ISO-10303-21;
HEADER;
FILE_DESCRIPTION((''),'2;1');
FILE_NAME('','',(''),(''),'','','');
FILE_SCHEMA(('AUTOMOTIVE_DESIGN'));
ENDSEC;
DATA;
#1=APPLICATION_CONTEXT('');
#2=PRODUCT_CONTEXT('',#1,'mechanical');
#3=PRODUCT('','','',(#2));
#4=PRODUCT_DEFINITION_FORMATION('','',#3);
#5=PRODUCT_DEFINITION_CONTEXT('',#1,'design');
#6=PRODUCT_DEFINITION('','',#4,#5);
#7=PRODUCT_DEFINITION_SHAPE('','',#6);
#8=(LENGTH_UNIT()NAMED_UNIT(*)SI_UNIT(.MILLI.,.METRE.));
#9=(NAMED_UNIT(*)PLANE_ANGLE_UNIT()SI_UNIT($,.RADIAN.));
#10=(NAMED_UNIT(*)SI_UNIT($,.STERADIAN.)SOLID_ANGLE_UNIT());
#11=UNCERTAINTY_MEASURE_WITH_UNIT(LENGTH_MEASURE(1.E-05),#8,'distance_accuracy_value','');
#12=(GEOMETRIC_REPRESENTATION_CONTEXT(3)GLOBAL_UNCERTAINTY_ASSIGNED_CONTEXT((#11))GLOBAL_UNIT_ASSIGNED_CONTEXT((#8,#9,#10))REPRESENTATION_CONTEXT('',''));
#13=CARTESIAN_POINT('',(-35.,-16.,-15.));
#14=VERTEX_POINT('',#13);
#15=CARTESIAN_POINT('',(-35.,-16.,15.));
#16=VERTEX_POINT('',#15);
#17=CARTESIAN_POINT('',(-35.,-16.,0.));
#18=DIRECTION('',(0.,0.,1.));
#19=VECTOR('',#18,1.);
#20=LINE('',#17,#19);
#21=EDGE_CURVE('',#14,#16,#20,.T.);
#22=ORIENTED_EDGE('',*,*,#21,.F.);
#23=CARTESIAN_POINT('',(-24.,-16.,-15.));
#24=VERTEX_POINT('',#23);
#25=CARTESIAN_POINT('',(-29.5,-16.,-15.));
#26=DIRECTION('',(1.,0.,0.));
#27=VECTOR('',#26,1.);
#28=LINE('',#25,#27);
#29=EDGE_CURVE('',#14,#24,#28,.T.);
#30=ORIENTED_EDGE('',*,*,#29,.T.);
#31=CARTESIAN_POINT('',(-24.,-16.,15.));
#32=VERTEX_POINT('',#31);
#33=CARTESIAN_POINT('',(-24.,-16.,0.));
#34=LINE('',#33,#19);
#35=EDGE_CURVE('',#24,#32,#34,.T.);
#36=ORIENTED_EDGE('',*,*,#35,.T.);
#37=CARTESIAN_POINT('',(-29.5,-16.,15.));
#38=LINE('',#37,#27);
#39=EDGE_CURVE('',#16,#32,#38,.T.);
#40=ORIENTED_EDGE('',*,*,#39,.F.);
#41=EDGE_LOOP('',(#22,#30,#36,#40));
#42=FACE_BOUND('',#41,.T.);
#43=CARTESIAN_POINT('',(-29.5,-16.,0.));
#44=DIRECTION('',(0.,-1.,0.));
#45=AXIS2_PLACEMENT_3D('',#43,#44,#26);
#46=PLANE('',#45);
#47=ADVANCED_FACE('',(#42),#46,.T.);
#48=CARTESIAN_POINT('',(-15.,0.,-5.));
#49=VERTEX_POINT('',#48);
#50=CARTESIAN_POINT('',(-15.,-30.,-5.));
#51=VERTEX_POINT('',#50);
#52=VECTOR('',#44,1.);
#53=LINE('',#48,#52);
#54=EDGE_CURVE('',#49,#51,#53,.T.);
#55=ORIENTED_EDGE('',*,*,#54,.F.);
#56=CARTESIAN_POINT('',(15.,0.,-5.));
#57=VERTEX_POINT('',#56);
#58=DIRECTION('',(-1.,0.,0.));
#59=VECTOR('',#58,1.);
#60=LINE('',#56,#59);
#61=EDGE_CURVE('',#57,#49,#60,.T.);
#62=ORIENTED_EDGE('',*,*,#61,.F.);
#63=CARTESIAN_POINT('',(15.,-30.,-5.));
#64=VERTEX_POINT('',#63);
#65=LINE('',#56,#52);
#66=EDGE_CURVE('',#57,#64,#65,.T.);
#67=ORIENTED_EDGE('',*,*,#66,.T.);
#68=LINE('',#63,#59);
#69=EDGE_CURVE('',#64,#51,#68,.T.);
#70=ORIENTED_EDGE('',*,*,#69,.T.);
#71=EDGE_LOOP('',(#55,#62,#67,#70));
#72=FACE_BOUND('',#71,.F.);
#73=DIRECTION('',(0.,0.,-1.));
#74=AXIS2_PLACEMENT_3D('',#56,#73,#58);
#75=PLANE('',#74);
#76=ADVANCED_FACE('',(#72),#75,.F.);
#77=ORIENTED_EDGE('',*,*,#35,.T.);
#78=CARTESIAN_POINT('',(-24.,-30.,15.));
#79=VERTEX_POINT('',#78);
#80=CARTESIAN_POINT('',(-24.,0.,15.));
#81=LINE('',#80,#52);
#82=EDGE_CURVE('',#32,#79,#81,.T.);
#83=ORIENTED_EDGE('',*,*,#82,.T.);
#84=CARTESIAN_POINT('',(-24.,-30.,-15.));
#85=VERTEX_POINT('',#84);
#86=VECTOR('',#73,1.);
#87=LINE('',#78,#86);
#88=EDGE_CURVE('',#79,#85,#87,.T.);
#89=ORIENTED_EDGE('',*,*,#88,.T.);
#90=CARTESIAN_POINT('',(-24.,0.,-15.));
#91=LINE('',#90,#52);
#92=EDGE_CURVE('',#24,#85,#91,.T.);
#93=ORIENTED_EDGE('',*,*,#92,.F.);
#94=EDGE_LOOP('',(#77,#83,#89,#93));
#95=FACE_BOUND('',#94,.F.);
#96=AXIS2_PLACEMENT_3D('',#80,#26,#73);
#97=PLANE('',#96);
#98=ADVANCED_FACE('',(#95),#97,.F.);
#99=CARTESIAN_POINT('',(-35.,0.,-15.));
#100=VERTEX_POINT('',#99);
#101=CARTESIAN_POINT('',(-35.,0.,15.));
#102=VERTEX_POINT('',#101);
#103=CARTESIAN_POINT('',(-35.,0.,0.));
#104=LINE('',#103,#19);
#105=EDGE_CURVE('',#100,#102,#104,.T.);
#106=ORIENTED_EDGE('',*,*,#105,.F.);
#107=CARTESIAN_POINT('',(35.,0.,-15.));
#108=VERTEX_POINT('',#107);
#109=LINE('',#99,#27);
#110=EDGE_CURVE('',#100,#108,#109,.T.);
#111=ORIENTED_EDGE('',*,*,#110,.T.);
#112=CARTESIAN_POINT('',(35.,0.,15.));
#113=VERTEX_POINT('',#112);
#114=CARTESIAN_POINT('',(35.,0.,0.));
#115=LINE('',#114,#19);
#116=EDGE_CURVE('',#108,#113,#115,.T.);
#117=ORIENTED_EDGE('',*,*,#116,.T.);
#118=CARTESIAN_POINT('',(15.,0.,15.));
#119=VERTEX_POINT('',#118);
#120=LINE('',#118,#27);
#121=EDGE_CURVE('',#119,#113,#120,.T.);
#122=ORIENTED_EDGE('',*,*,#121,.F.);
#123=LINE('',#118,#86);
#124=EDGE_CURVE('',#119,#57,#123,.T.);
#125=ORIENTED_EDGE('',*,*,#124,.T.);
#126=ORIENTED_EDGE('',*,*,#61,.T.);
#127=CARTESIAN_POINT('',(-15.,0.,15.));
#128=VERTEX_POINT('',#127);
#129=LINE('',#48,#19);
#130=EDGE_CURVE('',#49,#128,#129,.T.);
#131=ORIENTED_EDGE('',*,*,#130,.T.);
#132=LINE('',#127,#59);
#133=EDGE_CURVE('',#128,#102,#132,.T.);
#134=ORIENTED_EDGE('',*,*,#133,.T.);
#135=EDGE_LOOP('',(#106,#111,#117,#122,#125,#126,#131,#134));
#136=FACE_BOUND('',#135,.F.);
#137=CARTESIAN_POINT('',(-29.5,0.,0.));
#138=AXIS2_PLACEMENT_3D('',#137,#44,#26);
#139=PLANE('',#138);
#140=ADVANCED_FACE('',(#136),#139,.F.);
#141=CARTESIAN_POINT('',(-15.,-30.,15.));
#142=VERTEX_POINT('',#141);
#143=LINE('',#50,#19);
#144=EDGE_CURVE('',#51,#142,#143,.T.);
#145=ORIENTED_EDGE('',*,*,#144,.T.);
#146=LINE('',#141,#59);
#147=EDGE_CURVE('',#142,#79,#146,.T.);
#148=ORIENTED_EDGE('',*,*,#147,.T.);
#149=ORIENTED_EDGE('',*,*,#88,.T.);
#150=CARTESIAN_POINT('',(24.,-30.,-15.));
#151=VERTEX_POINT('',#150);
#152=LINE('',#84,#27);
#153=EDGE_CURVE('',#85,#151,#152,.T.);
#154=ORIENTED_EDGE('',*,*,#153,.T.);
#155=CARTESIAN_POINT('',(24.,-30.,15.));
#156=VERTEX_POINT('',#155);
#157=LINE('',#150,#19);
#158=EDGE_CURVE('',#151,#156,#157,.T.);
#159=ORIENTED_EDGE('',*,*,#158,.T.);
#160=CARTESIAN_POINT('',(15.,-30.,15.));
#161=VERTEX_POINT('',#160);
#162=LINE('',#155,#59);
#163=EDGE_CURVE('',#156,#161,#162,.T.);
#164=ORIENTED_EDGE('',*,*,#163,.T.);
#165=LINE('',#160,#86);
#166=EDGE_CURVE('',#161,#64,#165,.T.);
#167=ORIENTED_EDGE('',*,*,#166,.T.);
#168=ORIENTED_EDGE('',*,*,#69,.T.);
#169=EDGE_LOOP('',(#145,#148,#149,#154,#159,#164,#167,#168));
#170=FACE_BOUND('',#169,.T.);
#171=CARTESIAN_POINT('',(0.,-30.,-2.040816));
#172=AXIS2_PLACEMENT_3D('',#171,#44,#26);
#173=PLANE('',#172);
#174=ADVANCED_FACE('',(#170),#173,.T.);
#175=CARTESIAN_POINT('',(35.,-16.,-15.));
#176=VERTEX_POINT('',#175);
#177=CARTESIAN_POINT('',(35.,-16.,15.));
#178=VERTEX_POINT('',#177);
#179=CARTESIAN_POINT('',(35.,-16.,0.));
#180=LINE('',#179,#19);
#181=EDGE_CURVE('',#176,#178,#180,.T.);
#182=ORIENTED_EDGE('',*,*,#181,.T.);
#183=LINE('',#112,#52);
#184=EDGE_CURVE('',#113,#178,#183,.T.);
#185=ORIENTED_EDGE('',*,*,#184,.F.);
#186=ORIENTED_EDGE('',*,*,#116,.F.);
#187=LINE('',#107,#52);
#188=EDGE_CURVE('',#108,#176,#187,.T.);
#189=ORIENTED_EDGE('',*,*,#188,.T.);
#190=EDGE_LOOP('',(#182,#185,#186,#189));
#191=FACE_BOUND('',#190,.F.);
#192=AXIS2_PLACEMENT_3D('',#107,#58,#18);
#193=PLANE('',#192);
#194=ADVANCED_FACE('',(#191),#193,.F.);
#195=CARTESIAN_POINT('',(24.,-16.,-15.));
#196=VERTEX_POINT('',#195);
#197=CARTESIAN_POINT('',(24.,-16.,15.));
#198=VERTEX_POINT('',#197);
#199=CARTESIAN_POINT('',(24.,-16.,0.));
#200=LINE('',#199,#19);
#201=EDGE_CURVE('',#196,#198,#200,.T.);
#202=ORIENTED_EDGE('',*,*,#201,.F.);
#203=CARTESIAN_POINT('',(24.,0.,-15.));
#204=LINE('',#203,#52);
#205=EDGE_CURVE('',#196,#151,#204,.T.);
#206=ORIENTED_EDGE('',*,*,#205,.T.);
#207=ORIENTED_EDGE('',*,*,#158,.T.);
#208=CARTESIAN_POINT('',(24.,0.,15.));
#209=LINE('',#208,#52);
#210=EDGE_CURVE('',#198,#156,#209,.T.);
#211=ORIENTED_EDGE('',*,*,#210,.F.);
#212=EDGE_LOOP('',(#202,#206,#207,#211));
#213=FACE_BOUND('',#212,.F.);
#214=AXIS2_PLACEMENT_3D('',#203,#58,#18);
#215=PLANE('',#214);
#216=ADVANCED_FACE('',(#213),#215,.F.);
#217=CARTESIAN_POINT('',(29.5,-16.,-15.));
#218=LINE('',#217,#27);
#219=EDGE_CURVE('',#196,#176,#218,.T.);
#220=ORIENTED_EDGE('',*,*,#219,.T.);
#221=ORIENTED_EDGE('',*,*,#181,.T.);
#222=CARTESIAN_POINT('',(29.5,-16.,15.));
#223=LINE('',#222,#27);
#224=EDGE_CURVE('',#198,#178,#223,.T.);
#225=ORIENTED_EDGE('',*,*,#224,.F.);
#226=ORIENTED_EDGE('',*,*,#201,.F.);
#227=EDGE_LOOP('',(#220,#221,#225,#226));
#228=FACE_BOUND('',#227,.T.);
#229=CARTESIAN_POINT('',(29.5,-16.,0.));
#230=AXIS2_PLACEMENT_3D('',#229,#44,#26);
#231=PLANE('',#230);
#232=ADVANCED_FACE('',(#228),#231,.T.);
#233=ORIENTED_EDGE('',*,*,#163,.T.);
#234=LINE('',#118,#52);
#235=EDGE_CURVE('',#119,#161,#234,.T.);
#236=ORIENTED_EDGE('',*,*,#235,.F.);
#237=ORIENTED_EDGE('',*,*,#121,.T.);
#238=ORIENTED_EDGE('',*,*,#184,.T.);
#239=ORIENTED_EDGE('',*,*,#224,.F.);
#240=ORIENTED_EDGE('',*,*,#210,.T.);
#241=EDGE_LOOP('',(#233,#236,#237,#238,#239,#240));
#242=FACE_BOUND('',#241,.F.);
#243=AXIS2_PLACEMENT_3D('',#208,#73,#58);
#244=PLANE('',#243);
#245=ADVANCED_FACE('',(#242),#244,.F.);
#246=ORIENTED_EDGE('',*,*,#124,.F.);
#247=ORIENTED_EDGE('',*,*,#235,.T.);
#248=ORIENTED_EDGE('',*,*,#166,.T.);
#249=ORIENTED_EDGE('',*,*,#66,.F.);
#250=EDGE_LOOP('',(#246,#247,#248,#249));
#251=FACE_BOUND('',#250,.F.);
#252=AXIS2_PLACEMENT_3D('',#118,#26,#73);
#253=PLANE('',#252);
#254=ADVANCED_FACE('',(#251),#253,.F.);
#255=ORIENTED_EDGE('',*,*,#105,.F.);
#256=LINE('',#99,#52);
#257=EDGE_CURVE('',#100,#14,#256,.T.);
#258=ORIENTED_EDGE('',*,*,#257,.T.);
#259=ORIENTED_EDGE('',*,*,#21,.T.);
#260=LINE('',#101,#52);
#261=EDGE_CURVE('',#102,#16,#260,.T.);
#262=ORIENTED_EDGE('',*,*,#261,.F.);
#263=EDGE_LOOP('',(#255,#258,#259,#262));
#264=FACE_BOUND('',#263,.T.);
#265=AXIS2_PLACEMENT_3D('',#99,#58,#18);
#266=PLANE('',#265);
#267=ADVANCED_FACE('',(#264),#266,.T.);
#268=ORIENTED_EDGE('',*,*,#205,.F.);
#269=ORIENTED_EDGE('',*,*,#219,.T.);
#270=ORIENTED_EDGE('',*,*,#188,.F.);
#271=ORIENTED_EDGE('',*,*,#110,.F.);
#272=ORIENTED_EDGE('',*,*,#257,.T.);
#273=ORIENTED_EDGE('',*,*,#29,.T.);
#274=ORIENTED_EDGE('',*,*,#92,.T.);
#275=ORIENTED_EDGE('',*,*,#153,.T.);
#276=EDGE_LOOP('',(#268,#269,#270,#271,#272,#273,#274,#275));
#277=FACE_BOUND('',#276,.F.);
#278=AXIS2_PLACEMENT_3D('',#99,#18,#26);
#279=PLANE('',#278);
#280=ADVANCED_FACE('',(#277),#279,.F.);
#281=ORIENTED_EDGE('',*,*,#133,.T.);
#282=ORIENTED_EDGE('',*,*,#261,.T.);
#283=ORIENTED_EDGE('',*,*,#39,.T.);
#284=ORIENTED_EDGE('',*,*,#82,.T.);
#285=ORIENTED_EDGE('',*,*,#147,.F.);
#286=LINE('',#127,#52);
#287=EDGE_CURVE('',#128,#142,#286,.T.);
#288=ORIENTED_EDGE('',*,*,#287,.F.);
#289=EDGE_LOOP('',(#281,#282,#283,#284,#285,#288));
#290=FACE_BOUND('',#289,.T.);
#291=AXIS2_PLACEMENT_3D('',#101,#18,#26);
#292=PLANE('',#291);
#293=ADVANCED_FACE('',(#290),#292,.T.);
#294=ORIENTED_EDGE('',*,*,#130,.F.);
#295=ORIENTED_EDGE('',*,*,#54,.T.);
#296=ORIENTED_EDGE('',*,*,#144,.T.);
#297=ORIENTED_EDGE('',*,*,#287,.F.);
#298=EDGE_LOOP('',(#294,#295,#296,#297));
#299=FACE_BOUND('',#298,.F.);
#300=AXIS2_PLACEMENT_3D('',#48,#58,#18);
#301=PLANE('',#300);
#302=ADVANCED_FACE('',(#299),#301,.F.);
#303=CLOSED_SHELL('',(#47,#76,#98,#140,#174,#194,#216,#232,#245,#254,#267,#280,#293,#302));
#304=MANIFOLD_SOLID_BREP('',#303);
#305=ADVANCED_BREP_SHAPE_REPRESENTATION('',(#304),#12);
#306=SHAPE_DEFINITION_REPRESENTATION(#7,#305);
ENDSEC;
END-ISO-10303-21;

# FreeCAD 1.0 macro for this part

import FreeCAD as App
import Part
import Sketcher


def add_polygon(sketch, points):
    """Adds a closed chain of lines whose ends are joined by coincident constraints."""
    first, n = sketch.GeometryCount, len(points)
    for a, b in zip(points, points[1:] + points[:1]):
        sketch.addGeometry(Part.LineSegment(App.Vector(*a, 0), App.Vector(*b, 0)), False)
    for i in range(n):
        sketch.addConstraint(Sketcher.Constraint("Coincident", first + i, 2, first + (i + 1) % n, 1))

doc = App.newDocument("Part")
body = doc.addObject("PartDesign::Body", "Body")

# Sketch on XZ plane
sketch1 = body.newObject("Sketcher::SketchObject", "Sketch")
sketch1.AttachmentSupport = (doc.getObject("XZ_Plane"), [""])
sketch1.MapMode = "FlatFace"
add_polygon(sketch1, [(-24, 15), (-24, -15), (24, -15), (24, 15), (15, 15), (15, -5), (-15, -5), (-15, 15)])  # lines 0-7
sketch1.addConstraint([
    Sketcher.Constraint("Vertical", 0),
    Sketcher.Constraint("Horizontal", 1),
    Sketcher.Constraint("Vertical", 2),
    Sketcher.Constraint("Horizontal", 3),
    Sketcher.Constraint("Vertical", 4),
    Sketcher.Constraint("Horizontal", 5),
    Sketcher.Constraint("Vertical", 6),
    Sketcher.Constraint("Horizontal", 7),
    Sketcher.Constraint("Symmetric", 0, 2, 2, 2, -1, 1),
    Sketcher.Constraint("Symmetric", 3, 2, 6, 2, -2),
    Sketcher.Constraint("Equal", 5, 0),
    Sketcher.Constraint("DistanceX", 1, 1, 1, 2, 48.0),
    Sketcher.Constraint("DistanceX", 3, 2, 3, 1, 9.0),
    Sketcher.Constraint("DistanceY", 4, 2, 4, 1, 20.0),
])
pad1 = body.newObject("PartDesign::Pad", "Pad")
pad1.Profile = sketch1
pad1.Length = 30

# Sketch on XZ plane
sketch2 = body.newObject("Sketcher::SketchObject", "Sketch001")
sketch2.AttachmentSupport = (doc.getObject("XZ_Plane"), [""])
sketch2.MapMode = "FlatFace"
add_polygon(sketch2, [(-35, 15), (-35, -15), (-24, -15), (-24, 15)])  # lines 0-3
add_polygon(sketch2, [(24, 15), (24, -15), (35, -15), (35, 15)])  # lines 4-7
sketch2.addConstraint([
    Sketcher.Constraint("Vertical", 0),
    Sketcher.Constraint("Horizontal", 1),
    Sketcher.Constraint("Vertical", 2),
    Sketcher.Constraint("Horizontal", 3),
    Sketcher.Constraint("Vertical", 4),
    Sketcher.Constraint("Horizontal", 5),
    Sketcher.Constraint("Vertical", 6),
    Sketcher.Constraint("Horizontal", 7),
    Sketcher.Constraint("Symmetric", 2, 2, 4, 2, -1, 1),
    Sketcher.Constraint("Symmetric", 0, 2, 6, 2, -1, 1),
    Sketcher.Constraint("Horizontal", 1, 2, 4, 2),
    Sketcher.Constraint("DistanceX", 1, 1, 1, 2, 11.0),
    Sketcher.Constraint("DistanceY", 0, 2, 0, 1, 30.0),
    Sketcher.Constraint("DistanceX", 0, 2, -1, 1, 35.0),
])
pad2 = body.newObject("PartDesign::Pad", "Pad001")
pad2.Profile = sketch2
pad2.Length = 16

doc.recompute()
